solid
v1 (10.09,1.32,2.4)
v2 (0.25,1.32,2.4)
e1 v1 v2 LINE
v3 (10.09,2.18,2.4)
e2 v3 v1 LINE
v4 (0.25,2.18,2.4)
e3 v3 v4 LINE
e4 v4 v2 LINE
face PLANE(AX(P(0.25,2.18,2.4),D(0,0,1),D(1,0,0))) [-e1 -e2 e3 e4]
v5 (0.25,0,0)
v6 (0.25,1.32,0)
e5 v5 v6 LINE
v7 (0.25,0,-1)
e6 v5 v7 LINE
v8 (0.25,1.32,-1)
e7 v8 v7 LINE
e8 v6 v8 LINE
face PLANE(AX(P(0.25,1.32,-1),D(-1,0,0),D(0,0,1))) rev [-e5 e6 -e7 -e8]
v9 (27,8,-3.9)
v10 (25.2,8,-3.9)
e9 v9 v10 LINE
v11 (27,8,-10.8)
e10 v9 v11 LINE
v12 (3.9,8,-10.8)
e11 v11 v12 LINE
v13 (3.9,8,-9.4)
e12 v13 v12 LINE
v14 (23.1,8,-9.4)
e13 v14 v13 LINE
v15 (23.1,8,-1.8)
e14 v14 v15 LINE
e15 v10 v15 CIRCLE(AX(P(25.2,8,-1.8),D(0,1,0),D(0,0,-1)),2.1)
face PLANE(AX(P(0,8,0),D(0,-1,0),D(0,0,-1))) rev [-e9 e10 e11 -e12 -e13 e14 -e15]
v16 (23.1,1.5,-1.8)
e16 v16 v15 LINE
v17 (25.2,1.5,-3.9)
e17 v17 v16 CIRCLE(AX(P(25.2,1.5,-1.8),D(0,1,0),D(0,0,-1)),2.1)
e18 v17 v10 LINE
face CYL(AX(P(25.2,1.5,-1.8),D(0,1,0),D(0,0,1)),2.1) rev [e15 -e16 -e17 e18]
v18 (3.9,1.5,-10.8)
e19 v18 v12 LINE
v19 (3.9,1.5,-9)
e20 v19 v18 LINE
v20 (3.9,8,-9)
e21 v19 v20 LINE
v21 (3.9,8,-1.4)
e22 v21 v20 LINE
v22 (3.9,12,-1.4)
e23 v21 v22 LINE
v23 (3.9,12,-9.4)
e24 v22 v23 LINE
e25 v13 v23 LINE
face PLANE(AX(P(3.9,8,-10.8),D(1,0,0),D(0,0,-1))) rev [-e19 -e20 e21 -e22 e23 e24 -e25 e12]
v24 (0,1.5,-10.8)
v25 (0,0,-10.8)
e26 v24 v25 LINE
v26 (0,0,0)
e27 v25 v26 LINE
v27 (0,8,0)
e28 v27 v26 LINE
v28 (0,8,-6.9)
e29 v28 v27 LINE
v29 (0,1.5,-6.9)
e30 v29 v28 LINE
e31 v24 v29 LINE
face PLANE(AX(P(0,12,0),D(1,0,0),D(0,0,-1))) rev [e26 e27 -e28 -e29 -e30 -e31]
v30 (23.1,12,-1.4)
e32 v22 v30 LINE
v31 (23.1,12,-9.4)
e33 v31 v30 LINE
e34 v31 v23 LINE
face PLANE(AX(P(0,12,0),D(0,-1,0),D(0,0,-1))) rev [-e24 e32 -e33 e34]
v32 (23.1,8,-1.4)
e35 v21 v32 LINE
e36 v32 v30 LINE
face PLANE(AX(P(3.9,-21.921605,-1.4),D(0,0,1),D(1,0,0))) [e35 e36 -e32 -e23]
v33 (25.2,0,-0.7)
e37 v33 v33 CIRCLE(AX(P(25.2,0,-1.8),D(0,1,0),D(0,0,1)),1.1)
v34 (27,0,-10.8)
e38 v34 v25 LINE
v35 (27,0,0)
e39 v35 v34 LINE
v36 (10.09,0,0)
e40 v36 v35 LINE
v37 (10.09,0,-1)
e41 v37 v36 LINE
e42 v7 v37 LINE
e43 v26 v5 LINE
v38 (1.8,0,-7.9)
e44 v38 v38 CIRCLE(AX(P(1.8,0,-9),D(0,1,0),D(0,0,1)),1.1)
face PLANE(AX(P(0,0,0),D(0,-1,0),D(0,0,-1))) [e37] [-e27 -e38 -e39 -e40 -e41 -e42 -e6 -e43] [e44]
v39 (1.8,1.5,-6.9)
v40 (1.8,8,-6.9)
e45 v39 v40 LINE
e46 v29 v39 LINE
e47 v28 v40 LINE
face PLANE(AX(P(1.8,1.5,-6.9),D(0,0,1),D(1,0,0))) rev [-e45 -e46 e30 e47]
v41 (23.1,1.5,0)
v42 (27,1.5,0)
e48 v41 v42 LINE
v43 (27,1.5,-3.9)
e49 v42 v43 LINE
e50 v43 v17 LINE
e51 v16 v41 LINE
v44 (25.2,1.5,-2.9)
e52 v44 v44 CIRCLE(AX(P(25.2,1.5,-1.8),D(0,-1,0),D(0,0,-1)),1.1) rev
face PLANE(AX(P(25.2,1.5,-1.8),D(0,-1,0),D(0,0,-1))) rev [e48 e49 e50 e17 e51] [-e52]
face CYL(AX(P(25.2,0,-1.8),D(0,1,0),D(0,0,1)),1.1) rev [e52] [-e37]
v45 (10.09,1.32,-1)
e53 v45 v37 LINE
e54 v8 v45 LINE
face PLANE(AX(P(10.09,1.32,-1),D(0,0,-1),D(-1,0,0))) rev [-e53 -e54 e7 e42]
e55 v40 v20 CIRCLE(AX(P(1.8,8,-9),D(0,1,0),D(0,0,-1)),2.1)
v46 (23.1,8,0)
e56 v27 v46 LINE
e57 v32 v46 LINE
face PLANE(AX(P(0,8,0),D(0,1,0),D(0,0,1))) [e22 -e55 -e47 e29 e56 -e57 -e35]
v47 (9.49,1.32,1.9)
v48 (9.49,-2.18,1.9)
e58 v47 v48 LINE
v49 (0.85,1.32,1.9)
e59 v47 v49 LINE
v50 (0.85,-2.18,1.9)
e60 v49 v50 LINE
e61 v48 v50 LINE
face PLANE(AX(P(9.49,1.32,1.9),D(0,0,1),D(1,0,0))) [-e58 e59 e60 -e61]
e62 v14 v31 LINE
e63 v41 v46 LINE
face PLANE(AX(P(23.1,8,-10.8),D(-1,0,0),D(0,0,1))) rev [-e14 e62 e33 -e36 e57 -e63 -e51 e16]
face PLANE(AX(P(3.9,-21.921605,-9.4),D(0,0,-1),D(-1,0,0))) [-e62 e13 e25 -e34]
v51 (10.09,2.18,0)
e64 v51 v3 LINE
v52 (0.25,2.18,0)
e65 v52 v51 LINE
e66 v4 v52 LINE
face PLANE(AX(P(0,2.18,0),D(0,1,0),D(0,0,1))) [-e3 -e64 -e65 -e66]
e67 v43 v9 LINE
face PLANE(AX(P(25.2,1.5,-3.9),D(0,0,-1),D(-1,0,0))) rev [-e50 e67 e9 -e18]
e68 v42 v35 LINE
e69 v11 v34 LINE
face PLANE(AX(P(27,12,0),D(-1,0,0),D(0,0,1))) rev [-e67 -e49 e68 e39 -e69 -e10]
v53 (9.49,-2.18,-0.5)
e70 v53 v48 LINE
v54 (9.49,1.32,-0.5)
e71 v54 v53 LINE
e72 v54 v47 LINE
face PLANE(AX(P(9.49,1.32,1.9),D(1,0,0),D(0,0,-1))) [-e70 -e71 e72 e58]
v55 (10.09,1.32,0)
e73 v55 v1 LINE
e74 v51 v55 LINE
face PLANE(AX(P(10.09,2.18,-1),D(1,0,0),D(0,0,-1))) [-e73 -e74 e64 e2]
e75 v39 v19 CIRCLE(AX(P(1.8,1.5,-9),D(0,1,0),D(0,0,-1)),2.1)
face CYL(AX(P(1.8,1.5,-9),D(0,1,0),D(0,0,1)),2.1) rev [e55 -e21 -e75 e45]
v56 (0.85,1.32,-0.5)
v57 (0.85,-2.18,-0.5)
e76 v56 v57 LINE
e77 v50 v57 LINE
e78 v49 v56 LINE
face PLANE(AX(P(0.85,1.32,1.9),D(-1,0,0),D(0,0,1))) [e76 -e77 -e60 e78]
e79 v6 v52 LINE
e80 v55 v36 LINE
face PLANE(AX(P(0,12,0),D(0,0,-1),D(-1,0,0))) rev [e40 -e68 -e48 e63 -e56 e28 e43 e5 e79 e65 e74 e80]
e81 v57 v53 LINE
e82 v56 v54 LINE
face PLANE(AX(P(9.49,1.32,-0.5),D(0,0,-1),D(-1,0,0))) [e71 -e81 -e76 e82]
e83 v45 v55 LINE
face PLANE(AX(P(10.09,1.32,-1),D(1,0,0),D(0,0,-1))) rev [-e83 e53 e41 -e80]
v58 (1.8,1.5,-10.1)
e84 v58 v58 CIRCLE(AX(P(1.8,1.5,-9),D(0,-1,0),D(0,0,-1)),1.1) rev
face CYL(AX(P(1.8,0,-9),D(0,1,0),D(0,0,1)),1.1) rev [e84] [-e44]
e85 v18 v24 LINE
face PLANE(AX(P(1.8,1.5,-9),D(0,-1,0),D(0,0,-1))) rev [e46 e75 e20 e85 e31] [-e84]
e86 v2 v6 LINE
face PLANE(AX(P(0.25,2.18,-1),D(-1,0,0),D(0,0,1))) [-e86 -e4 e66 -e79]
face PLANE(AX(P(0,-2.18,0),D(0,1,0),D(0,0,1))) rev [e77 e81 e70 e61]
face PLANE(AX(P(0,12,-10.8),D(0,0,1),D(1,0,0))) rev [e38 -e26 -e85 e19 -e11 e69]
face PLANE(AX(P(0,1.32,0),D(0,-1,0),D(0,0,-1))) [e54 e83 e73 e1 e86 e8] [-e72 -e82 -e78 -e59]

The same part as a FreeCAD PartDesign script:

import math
import FreeCAD as App
import Part
import Sketcher
from FreeCAD import Vector

doc = App.newDocument("Part")
body = doc.addObject("PartDesign::Body", "Body")

# Sketch on XZ plane
sketch1 = doc.addObject("Sketcher::SketchObject", "Sketch")
body.addObject(sketch1)
sketch1.AttachmentSupport = (doc.XZ_Plane, [""])
sketch1.MapMode = "FlatFace"
sketch1.addGeometry(Part.LineSegment(Vector(0, -11, 0), Vector(0, 0, 0)), False)
sketch1.addGeometry(Part.LineSegment(Vector(0, 0, 0), Vector(27, 0, 0)), False)
sketch1.addGeometry(Part.LineSegment(Vector(27, 0, 0), Vector(27, -11, 0)), False)
sketch1.addGeometry(Part.LineSegment(Vector(27, -11, 0), Vector(0, -11, 0)), False)
sketch1.addConstraint(Sketcher.Constraint("Coincident", 0, 2, 1, 1))
sketch1.addConstraint(Sketcher.Constraint("Coincident", 1, 2, 2, 1))
sketch1.addConstraint(Sketcher.Constraint("Coincident", 2, 2, 3, 1))
sketch1.addConstraint(Sketcher.Constraint("Coincident", 3, 2, 0, 1))
sketch1.addConstraint(Sketcher.Constraint("Vertical", 0))
sketch1.addConstraint(Sketcher.Constraint("Horizontal", 1))
sketch1.addConstraint(Sketcher.Constraint("Vertical", 2))
sketch1.addConstraint(Sketcher.Constraint("Horizontal", 3))
sketch1.addConstraint(Sketcher.Constraint("Coincident", 0, 2, -1, 1))
sketch1.addConstraint(Sketcher.Constraint("DistanceX", 1, 1, 1, 2, 27.0))
sketch1.addConstraint(Sketcher.Constraint("DistanceY", 0, 1, 0, 2, 10.8))
pad1 = doc.addObject("PartDesign::Pad", "Pad")
body.addObject(pad1)
pad1.Profile = sketch1
pad1.Length = 12
pad1.Reversed = True

# Sketch on XZ plane
sketch2 = doc.addObject("Sketcher::SketchObject", "Sketch001")
body.addObject(sketch2)
sketch2.AttachmentSupport = (doc.XZ_Plane, [""])
sketch2.MapMode = "FlatFace"
sketch2.AttachmentOffset = App.Placement(Vector(0, 0, -12), App.Rotation())
sketch2.addGeometry(Part.LineSegment(Vector(0, -10.8, 0), Vector(0, 0, 0)), False)
sketch2.addGeometry(Part.LineSegment(Vector(0, 0, 0), Vector(3.9, 0, 0)), False)
sketch2.addGeometry(Part.LineSegment(Vector(3.9, 0, 0), Vector(3.9, -10.8, 0)), False)
sketch2.addGeometry(Part.LineSegment(Vector(3.9, -10.8, 0), Vector(0, -10.8, 0)), False)
sketch2.addConstraint(Sketcher.Constraint("Coincident", 0, 2, 1, 1))
sketch2.addConstraint(Sketcher.Constraint("Coincident", 1, 2, 2, 1))
sketch2.addConstraint(Sketcher.Constraint("Coincident", 2, 2, 3, 1))
sketch2.addConstraint(Sketcher.Constraint("Coincident", 3, 2, 0, 1))
sketch2.addConstraint(Sketcher.Constraint("Vertical", 0))
sketch2.addConstraint(Sketcher.Constraint("Horizontal", 1))
sketch2.addConstraint(Sketcher.Constraint("Vertical", 2))
sketch2.addConstraint(Sketcher.Constraint("Horizontal", 3))
sketch2.addConstraint(Sketcher.Constraint("Coincident", 0, 2, -1, 1))
sketch2.addConstraint(Sketcher.Constraint("DistanceX", 1, 1, 1, 2, 3.9))
sketch2.addConstraint(Sketcher.Constraint("DistanceY", 0, 1, 0, 2, 10.8))
pocket1 = doc.addObject("PartDesign::Pocket", "Pocket")
body.addObject(pocket1)
pocket1.Profile = sketch2
pocket1.Length = 4
pocket1.Reversed = True

# Sketch on XZ plane
sketch3 = doc.addObject("Sketcher::SketchObject", "Sketch002")
body.addObject(sketch3)
sketch3.AttachmentSupport = (doc.XZ_Plane, [""])
sketch3.MapMode = "FlatFace"
sketch3.AttachmentOffset = App.Placement(Vector(0, 0, -12), App.Rotation())
sketch3.addGeometry(Part.LineSegment(Vector(23.1, -10.8, 0), Vector(23.1, 0, 0)), False)
sketch3.addGeometry(Part.LineSegment(Vector(23.1, 0, 0), Vector(27, 0, 0)), False)
sketch3.addGeometry(Part.LineSegment(Vector(27, 0, 0), Vector(27, -10.8, 0)), False)
sketch3.addGeometry(Part.LineSegment(Vector(27, -10.8, 0), Vector(23.1, -10.8, 0)), False)
sketch3.addConstraint(Sketcher.Constraint("Coincident", 0, 2, 1, 1))
sketch3.addConstraint(Sketcher.Constraint("Coincident", 1, 2, 2, 1))
sketch3.addConstraint(Sketcher.Constraint("Coincident", 2, 2, 3, 1))
sketch3.addConstraint(Sketcher.Constraint("Coincident", 3, 2, 0, 1))
sketch3.addConstraint(Sketcher.Constraint("Vertical", 0))
sketch3.addConstraint(Sketcher.Constraint("Horizontal", 1))
sketch3.addConstraint(Sketcher.Constraint("Vertical", 2))
sketch3.addConstraint(Sketcher.Constraint("Horizontal", 3))
sketch3.addConstraint(Sketcher.Constraint("PointOnObject", 0, 2, -1))
sketch3.addConstraint(Sketcher.Constraint("DistanceX", 1, 1, 1, 2, 3.9))
sketch3.addConstraint(Sketcher.Constraint("DistanceY", 0, 1, 0, 2, 10.8))
sketch3.addConstraint(Sketcher.Constraint("DistanceX", -1, 1, 1, 2, 27.0))
pocket2 = doc.addObject("PartDesign::Pocket", "Pocket001")
body.addObject(pocket2)
pocket2.Profile = sketch3
pocket2.Length = 4
pocket2.Reversed = True

# Sketch on XZ plane
sketch4 = doc.addObject("Sketcher::SketchObject", "Sketch003")
body.addObject(sketch4)
sketch4.AttachmentSupport = (doc.XZ_Plane, [""])
sketch4.MapMode = "FlatFace"
sketch4.AttachmentOffset = App.Placement(Vector(0, 0, -8), App.Rotation())
sketch4.addGeometry(Part.Circle(Vector(25.2, -1.8, 0), Vector(0, 0, 1), 1.1), False)
sketch4.addConstraint(Sketcher.Constraint("Diameter", 0, 2.2))
sketch4.addConstraint(Sketcher.Constraint("DistanceX", -1, 1, 0, 3, 25.2))
sketch4.addConstraint(Sketcher.Constraint("DistanceY", 0, 3, -1, 1, 1.8))
pocket3 = doc.addObject("PartDesign::Pocket", "Pocket002")
body.addObject(pocket3)
pocket3.Profile = sketch4
pocket3.Type = "ThroughAll"
pocket3.Midplane = True

# Sketch on XZ plane
sketch5 = doc.addObject("Sketcher::SketchObject", "Sketch004")
body.addObject(sketch5)
sketch5.AttachmentSupport = (doc.XZ_Plane, [""])
sketch5.MapMode = "FlatFace"
sketch5.AttachmentOffset = App.Placement(Vector(0, 0, -8), App.Rotation())
sketch5.addGeometry(Part.Circle(Vector(1.8, -9, 0), Vector(0, 0, 1), 1.1), False)
sketch5.addConstraint(Sketcher.Constraint("Diameter", 0, 2.2))
sketch5.addConstraint(Sketcher.Constraint("DistanceY", 0, 3, -1, 1, 9.0))
sketch5.addConstraint(Sketcher.Constraint("DistanceX", -1, 1, 0, 3, 1.8))
pocket4 = doc.addObject("PartDesign::Pocket", "Pocket003")
body.addObject(pocket4)
pocket4.Profile = sketch5
pocket4.Type = "ThroughAll"
pocket4.Midplane = True

# Sketch on XZ plane
sketch6 = doc.addObject("Sketcher::SketchObject", "Sketch005")
body.addObject(sketch6)
sketch6.AttachmentSupport = (doc.XZ_Plane, [""])
sketch6.MapMode = "FlatFace"
sketch6.AttachmentOffset = App.Placement(Vector(0, 0, -8), App.Rotation())
sketch6.addGeometry(Part.LineSegment(Vector(0, -6.9, 0), Vector(1.8, -6.9, 0)), False)
sketch6.addGeometry(Part.ArcOfCircle(Part.Circle(Vector(1.8, -9, 0), Vector(0, 0, 1), 2.1), math.radians(0), math.radians(90)), False)
sketch6.addGeometry(Part.LineSegment(Vector(3.9, -9, 0), Vector(3.9, -10.8, 0)), False)
sketch6.addGeometry(Part.LineSegment(Vector(3.9, -10.8, 0), Vector(0, -10.8, 0)), False)
sketch6.addGeometry(Part.LineSegment(Vector(0, -10.8, 0), Vector(0, -6.9, 0)), False)
sketch6.addGeometry(Part.LineSegment(Vector(27, -3.9, 0), Vector(25.2, -3.9, 0)), False)
sketch6.addGeometry(Part.ArcOfCircle(Part.Circle(Vector(25.2, -1.8, 0), Vector(0, 0, 1), 2.1), math.radians(-180), math.radians(-90)), False)
sketch6.addGeometry(Part.LineSegment(Vector(23.1, -1.8, 0), Vector(23.1, 0, 0)), False)
sketch6.addGeometry(Part.LineSegment(Vector(23.1, 0, 0), Vector(27, 0, 0)), False)
sketch6.addGeometry(Part.LineSegment(Vector(27, 0, 0), Vector(27, -3.9, 0)), False)
sketch6.addConstraint(Sketcher.Constraint("Tangent", 0, 2, 1, 2))
sketch6.addConstraint(Sketcher.Constraint("Tangent", 1, 1, 2, 1))
sketch6.addConstraint(Sketcher.Constraint("Coincident", 2, 2, 3, 1))
sketch6.addConstraint(Sketcher.Constraint("Coincident", 3, 2, 4, 1))
sketch6.addConstraint(Sketcher.Constraint("Coincident", 4, 2, 0, 1))
sketch6.addConstraint(Sketcher.Constraint("Tangent", 5, 2, 6, 2))
sketch6.addConstraint(Sketcher.Constraint("Tangent", 6, 1, 7, 1))
sketch6.addConstraint(Sketcher.Constraint("Coincident", 7, 2, 8, 1))
sketch6.addConstraint(Sketcher.Constraint("Coincident", 8, 2, 9, 1))
sketch6.addConstraint(Sketcher.Constraint("Coincident", 9, 2, 5, 1))
sketch6.addConstraint(Sketcher.Constraint("Horizontal", 0))
sketch6.addConstraint(Sketcher.Constraint("Vertical", 2))
sketch6.addConstraint(Sketcher.Constraint("Horizontal", 3))
sketch6.addConstraint(Sketcher.Constraint("Vertical", 4))
sketch6.addConstraint(Sketcher.Constraint("Horizontal", 5))
sketch6.addConstraint(Sketcher.Constraint("Vertical", 7))
sketch6.addConstraint(Sketcher.Constraint("Horizontal", 8))
sketch6.addConstraint(Sketcher.Constraint("Vertical", 9))
sketch6.addConstraint(Sketcher.Constraint("Equal", 1, 6))
sketch6.addConstraint(Sketcher.Constraint("PointOnObject", 3, 2, -2))
sketch6.addConstraint(Sketcher.Constraint("PointOnObject", 7, 2, -1))
sketch6.addConstraint(Sketcher.Constraint("Equal", 0, 5))
sketch6.addConstraint(Sketcher.Constraint("Equal", 5, 2))
sketch6.addConstraint(Sketcher.Constraint("Equal", 2, 7))
sketch6.addConstraint(Sketcher.Constraint("Radius", 1, 2.1))
sketch6.addConstraint(Sketcher.Constraint("DistanceX", 0, 1, 0, 2, 1.8))
sketch6.addConstraint(Sketcher.Constraint("DistanceY", 1, 3, -1, 1, 9.0))
sketch6.addConstraint(Sketcher.Constraint("DistanceX", -1, 1, 8, 2, 27.0))
pocket5 = doc.addObject("PartDesign::Pocket", "Pocket004")
body.addObject(pocket5)
pocket5.Profile = sketch6
pocket5.Length = 6.5
pocket5.Reversed = True

# Sketch on XZ plane
sketch7 = doc.addObject("Sketcher::SketchObject", "Sketch006")
body.addObject(sketch7)
sketch7.AttachmentSupport = (doc.XZ_Plane, [""])
sketch7.MapMode = "FlatFace"
sketch7.AttachmentOffset = App.Placement(Vector(0, 0, -12), App.Rotation())
sketch7.addGeometry(Part.LineSegment(Vector(-4, -15, 0), Vector(-4, 4, 0)), False)
sketch7.addGeometry(Part.LineSegment(Vector(-4, 4, 0), Vector(31, 4, 0)), False)
sketch7.addGeometry(Part.LineSegment(Vector(31, 4, 0), Vector(31, -15, 0)), False)
sketch7.addGeometry(Part.LineSegment(Vector(31, -15, 0), Vector(-4, -15, 0)), False)
sketch7.addGeometry(Part.LineSegment(Vector(23, -1, 0), Vector(4, -1, 0)), False)
sketch7.addGeometry(Part.LineSegment(Vector(4, -1, 0), Vector(4, -9, 0)), False)
sketch7.addGeometry(Part.LineSegment(Vector(4, -9, 0), Vector(23, -9, 0)), False)
sketch7.addGeometry(Part.LineSegment(Vector(23, -9, 0), Vector(23, -1, 0)), False)
sketch7.addConstraint(Sketcher.Constraint("Coincident", 0, 2, 1, 1))
sketch7.addConstraint(Sketcher.Constraint("Coincident", 1, 2, 2, 1))
sketch7.addConstraint(Sketcher.Constraint("Coincident", 2, 2, 3, 1))
sketch7.addConstraint(Sketcher.Constraint("Coincident", 3, 2, 0, 1))
sketch7.addConstraint(Sketcher.Constraint("Coincident", 4, 2, 5, 1))
sketch7.addConstraint(Sketcher.Constraint("Coincident", 5, 2, 6, 1))
sketch7.addConstraint(Sketcher.Constraint("Coincident", 6, 2, 7, 1))
sketch7.addConstraint(Sketcher.Constraint("Coincident", 7, 2, 4, 1))
sketch7.addConstraint(Sketcher.Constraint("Vertical", 0))
sketch7.addConstraint(Sketcher.Constraint("Horizontal", 1))
sketch7.addConstraint(Sketcher.Constraint("Vertical", 2))
sketch7.addConstraint(Sketcher.Constraint("Horizontal", 3))
sketch7.addConstraint(Sketcher.Constraint("Horizontal", 4))
sketch7.addConstraint(Sketcher.Constraint("Vertical", 5))
sketch7.addConstraint(Sketcher.Constraint("Horizontal", 6))
sketch7.addConstraint(Sketcher.Constraint("Vertical", 7))
sketch7.addConstraint(Sketcher.Constraint("DistanceY", 5, 2, 5, 1, 8.0))
sketch7.addConstraint(Sketcher.Constraint("DistanceX", 4, 2, 4, 1, 19.2))
sketch7.addConstraint(Sketcher.Constraint("DistanceX", -1, 1, 4, 2, 3.9))
sketch7.addConstraint(Sketcher.Constraint("DistanceY", 4, 2, -1, 1, 1.4))
sketch7.addConstraint(Sketcher.Constraint("DistanceX", 1, 1, 1, 2, 35.292))
sketch7.addConstraint(Sketcher.Constraint("DistanceY", 0, 1, 0, 2, 19.092))
sketch7.addConstraint(Sketcher.Constraint("DistanceX", 0, 2, -1, 1, 4.146))
sketch7.addConstraint(Sketcher.Constraint("DistanceY", -1, 1, 0, 2, 4.146))
pocket6 = doc.addObject("PartDesign::Pocket", "Pocket005")
body.addObject(pocket6)
pocket6.Profile = sketch7
pocket6.Length = 4
pocket6.Reversed = True

# Sketch on XZ plane
sketch8 = doc.addObject("Sketcher::SketchObject", "Sketch007")
body.addObject(sketch8)
sketch8.AttachmentSupport = (doc.XZ_Plane, [""])
sketch8.MapMode = "FlatFace"
sketch8.addGeometry(Part.LineSegment(Vector(0.2, 2.4, 0), Vector(0.2, -1, 0)), False)
sketch8.addGeometry(Part.LineSegment(Vector(0.2, -1, 0), Vector(10.1, -1, 0)), False)
sketch8.addGeometry(Part.LineSegment(Vector(10.1, -1, 0), Vector(10.1, 2.4, 0)), False)
sketch8.addGeometry(Part.LineSegment(Vector(10.1, 2.4, 0), Vector(0.2, 2.4, 0)), False)
sketch8.addConstraint(Sketcher.Constraint("Coincident", 0, 2, 1, 1))
sketch8.addConstraint(Sketcher.Constraint("Coincident", 1, 2, 2, 1))
sketch8.addConstraint(Sketcher.Constraint("Coincident", 2, 2, 3, 1))
sketch8.addConstraint(Sketcher.Constraint("Coincident", 3, 2, 0, 1))
sketch8.addConstraint(Sketcher.Constraint("Vertical", 0))
sketch8.addConstraint(Sketcher.Constraint("Horizontal", 1))
sketch8.addConstraint(Sketcher.Constraint("Vertical", 2))
sketch8.addConstraint(Sketcher.Constraint("Horizontal", 3))
sketch8.addConstraint(Sketcher.Constraint("DistanceY", 0, 2, 0, 1, 3.4))
sketch8.addConstraint(Sketcher.Constraint("DistanceY", 0, 2, -1, 1, 1.0))
sketch8.addConstraint(Sketcher.Constraint("DistanceX", 1, 1, 1, 2, 9.84))
sketch8.addConstraint(Sketcher.Constraint("DistanceX", -1, 1, 0, 2, 0.25))
pad2 = doc.addObject("PartDesign::Pad", "Pad001")
body.addObject(pad2)
pad2.Profile = sketch8
pad2.Type = "TwoLengths"
pad2.Length = 2.18
pad2.Length2 = 2.18

# Sketch on XZ plane
sketch9 = doc.addObject("Sketcher::SketchObject", "Sketch008")
body.addObject(sketch9)
sketch9.AttachmentSupport = (doc.XZ_Plane, [""])
sketch9.MapMode = "FlatFace"
sketch9.AttachmentOffset = App.Placement(Vector(0, 0, 2.18), App.Rotation())
sketch9.addGeometry(Part.LineSegment(Vector(0.2, 2.4, 0), Vector(0.2, -1, 0)), False)
sketch9.addGeometry(Part.LineSegment(Vector(0.2, -1, 0), Vector(10.1, -1, 0)), False)
sketch9.addGeometry(Part.LineSegment(Vector(10.1, -1, 0), Vector(10.1, 2.4, 0)), False)
sketch9.addGeometry(Part.LineSegment(Vector(10.1, 2.4, 0), Vector(0.2, 2.4, 0)), False)
sketch9.addGeometry(Part.LineSegment(Vector(9.5, -0.5, 0), Vector(0.8, -0.5, 0)), False)
sketch9.addGeometry(Part.LineSegment(Vector(0.8, -0.5, 0), Vector(0.8, 1.9, 0)), False)
sketch9.addGeometry(Part.LineSegment(Vector(0.8, 1.9, 0), Vector(9.5, 1.9, 0)), False)
sketch9.addGeometry(Part.LineSegment(Vector(9.5, 1.9, 0), Vector(9.5, -0.5, 0)), False)
sketch9.addConstraint(Sketcher.Constraint("Coincident", 0, 2, 1, 1))
sketch9.addConstraint(Sketcher.Constraint("Coincident", 1, 2, 2, 1))
sketch9.addConstraint(Sketcher.Constraint("Coincident", 2, 2, 3, 1))
sketch9.addConstraint(Sketcher.Constraint("Coincident", 3, 2, 0, 1))
sketch9.addConstraint(Sketcher.Constraint("Coincident", 4, 2, 5, 1))
sketch9.addConstraint(Sketcher.Constraint("Coincident", 5, 2, 6, 1))
sketch9.addConstraint(Sketcher.Constraint("Coincident", 6, 2, 7, 1))
sketch9.addConstraint(Sketcher.Constraint("Coincident", 7, 2, 4, 1))
sketch9.addConstraint(Sketcher.Constraint("Vertical", 0))
sketch9.addConstraint(Sketcher.Constraint("Horizontal", 1))
sketch9.addConstraint(Sketcher.Constraint("Vertical", 2))
sketch9.addConstraint(Sketcher.Constraint("Horizontal", 3))
sketch9.addConstraint(Sketcher.Constraint("Horizontal", 4))
sketch9.addConstraint(Sketcher.Constraint("Vertical", 5))
sketch9.addConstraint(Sketcher.Constraint("Horizontal", 6))
sketch9.addConstraint(Sketcher.Constraint("Vertical", 7))
sketch9.addConstraint(Sketcher.Constraint("DistanceY", 0, 2, 0, 1, 3.4))
sketch9.addConstraint(Sketcher.Constraint("DistanceY", 5, 1, 5, 2, 2.4))
sketch9.addConstraint(Sketcher.Constraint("DistanceY", 0, 2, -1, 1, 1.0))
sketch9.addConstraint(Sketcher.Constraint("DistanceX", 1, 1, 1, 2, 9.84))
sketch9.addConstraint(Sketcher.Constraint("DistanceX", 4, 2, 4, 1, 8.64))
sketch9.addConstraint(Sketcher.Constraint("DistanceY", 4, 2, -1, 1, 0.5))
sketch9.addConstraint(Sketcher.Constraint("DistanceX", 0, 2, 4, 2, 0.6))
sketch9.addConstraint(Sketcher.Constraint("DistanceX", -1, 1, 0, 2, 0.25))
pocket7 = doc.addObject("PartDesign::Pocket", "Pocket006")
body.addObject(pocket7)
pocket7.Profile = sketch9
pocket7.Length = 3.5

doc.recompute()
